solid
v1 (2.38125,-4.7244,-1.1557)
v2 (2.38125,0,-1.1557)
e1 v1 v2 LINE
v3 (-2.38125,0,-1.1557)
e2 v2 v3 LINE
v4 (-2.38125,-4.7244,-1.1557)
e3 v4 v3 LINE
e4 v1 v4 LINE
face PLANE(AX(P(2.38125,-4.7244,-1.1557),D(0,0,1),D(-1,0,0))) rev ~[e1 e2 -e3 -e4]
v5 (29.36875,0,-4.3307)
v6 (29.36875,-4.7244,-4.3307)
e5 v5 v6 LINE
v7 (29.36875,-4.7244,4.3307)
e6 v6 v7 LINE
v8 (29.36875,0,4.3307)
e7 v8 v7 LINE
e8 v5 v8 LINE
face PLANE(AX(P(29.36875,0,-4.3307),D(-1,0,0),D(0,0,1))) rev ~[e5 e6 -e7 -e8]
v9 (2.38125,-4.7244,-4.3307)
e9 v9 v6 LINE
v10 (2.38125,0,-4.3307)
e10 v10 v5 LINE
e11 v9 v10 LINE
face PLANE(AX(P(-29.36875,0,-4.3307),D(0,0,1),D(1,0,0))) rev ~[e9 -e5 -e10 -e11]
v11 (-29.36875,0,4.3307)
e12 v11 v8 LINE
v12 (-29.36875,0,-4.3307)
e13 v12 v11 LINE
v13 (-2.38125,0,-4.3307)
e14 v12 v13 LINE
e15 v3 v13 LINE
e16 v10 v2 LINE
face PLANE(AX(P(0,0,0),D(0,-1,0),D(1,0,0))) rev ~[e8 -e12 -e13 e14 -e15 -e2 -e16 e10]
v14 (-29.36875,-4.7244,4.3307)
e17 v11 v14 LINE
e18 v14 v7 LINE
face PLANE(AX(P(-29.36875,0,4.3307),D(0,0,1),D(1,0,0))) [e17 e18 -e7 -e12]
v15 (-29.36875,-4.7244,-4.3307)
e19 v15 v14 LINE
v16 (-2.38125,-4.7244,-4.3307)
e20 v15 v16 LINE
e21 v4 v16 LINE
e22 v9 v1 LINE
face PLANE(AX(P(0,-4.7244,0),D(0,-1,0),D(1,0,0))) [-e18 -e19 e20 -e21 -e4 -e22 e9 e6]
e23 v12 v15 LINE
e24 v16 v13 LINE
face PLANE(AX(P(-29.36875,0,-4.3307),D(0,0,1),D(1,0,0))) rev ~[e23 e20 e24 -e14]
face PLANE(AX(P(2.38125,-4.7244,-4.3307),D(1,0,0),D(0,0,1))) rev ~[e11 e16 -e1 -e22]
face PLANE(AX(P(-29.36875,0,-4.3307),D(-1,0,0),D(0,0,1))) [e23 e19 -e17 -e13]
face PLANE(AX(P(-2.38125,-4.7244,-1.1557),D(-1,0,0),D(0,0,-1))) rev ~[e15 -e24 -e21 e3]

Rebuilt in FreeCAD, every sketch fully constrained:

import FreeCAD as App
import Part
import Sketcher
from FreeCAD import Vector
Q = App.Units.Quantity

doc = App.newDocument("Part")
body = doc.addObject("PartDesign::Body", "Body")

# Sketch on XZ plane
sketch1 = body.newObject("Sketcher::SketchObject", "Sketch")
sketch1.AttachmentSupport = (doc.getObject("XZ_Plane"), [""])
sketch1.MapMode = "FlatFace"
sketch1.addGeometry(Part.LineSegment(Vector(-29, 4, 0), Vector(-29, -4, 0)), False)
sketch1.addGeometry(Part.LineSegment(Vector(-29, -4, 0), Vector(29, -4, 0)), False)
sketch1.addGeometry(Part.LineSegment(Vector(29, -4, 0), Vector(29, 4, 0)), False)
sketch1.addGeometry(Part.LineSegment(Vector(29, 4, 0), Vector(-29, 4, 0)), False)
sketch1.addConstraint(Sketcher.Constraint("Coincident", 0, 2, 1, 1))
sketch1.addConstraint(Sketcher.Constraint("Coincident", 1, 2, 2, 1))
sketch1.addConstraint(Sketcher.Constraint("Coincident", 2, 2, 3, 1))
sketch1.addConstraint(Sketcher.Constraint("Coincident", 3, 2, 0, 1))
sketch1.addConstraint(Sketcher.Constraint("Vertical", 0))
sketch1.addConstraint(Sketcher.Constraint("Horizontal", 1))
sketch1.addConstraint(Sketcher.Constraint("Vertical", 2))
sketch1.addConstraint(Sketcher.Constraint("Horizontal", 3))
sketch1.addConstraint(Sketcher.Constraint("Symmetric", 0, 2, 2, 2, -1, 1))
sketch1.addConstraint(Sketcher.Constraint("DistanceX", 1, 1, 1, 2, Q("2.3125 in")))
sketch1.addConstraint(Sketcher.Constraint("DistanceY", 0, 2, 0, 1, Q("0.341 in")))
pad1 = body.newObject("PartDesign::Pad", "Pad")
pad1.Profile = sketch1
pad1.Length = Q("0.186 in")

# Sketch on XZ plane
sketch2 = body.newObject("Sketcher::SketchObject", "Sketch001")
sketch2.AttachmentSupport = (doc.getObject("XZ_Plane"), [""])
sketch2.MapMode = "FlatFace"
sketch2.AttachmentOffset = App.Placement(Vector(0, 0, 0.186 * 25.4), App.Rotation())
sketch2.addGeometry(Part.LineSegment(Vector(-2.4, -4.3, 0), Vector(2.4, -4.3, 0)), False)
sketch2.addGeometry(Part.LineSegment(Vector(2.4, -4.3, 0), Vector(2.4, -1.2, 0)), False)
sketch2.addGeometry(Part.LineSegment(Vector(2.4, -1.2, 0), Vector(-2.4, -1.2, 0)), False)
sketch2.addGeometry(Part.LineSegment(Vector(-2.4, -1.2, 0), Vector(-2.4, -4.3, 0)), False)
sketch2.addConstraint(Sketcher.Constraint("Coincident", 0, 2, 1, 1))
sketch2.addConstraint(Sketcher.Constraint("Coincident", 1, 2, 2, 1))
sketch2.addConstraint(Sketcher.Constraint("Coincident", 2, 2, 3, 1))
sketch2.addConstraint(Sketcher.Constraint("Coincident", 3, 2, 0, 1))
sketch2.addConstraint(Sketcher.Constraint("Horizontal", 0))
sketch2.addConstraint(Sketcher.Constraint("Vertical", 1))
sketch2.addConstraint(Sketcher.Constraint("Horizontal", 2))
sketch2.addConstraint(Sketcher.Constraint("Vertical", 3))
sketch2.addConstraint(Sketcher.Constraint("DistanceX", 0, 1, 0, 2, Q("0.1875 in")))
sketch2.addConstraint(Sketcher.Constraint("DistanceY", 1, 1, 1, 2, Q("0.125 in")))
sketch2.addConstraint(Sketcher.Constraint("DistanceX", -1, 1, 0, 2, Q("0.09375 in")))
sketch2.addConstraint(Sketcher.Constraint("DistanceY", 0, 2, -1, 1, Q("0.1705 in")))
pocket1 = body.newObject("PartDesign::Pocket", "Pocket")
pocket1.Profile = sketch2
pocket1.Length = Q("1 in")

doc.recompute()
